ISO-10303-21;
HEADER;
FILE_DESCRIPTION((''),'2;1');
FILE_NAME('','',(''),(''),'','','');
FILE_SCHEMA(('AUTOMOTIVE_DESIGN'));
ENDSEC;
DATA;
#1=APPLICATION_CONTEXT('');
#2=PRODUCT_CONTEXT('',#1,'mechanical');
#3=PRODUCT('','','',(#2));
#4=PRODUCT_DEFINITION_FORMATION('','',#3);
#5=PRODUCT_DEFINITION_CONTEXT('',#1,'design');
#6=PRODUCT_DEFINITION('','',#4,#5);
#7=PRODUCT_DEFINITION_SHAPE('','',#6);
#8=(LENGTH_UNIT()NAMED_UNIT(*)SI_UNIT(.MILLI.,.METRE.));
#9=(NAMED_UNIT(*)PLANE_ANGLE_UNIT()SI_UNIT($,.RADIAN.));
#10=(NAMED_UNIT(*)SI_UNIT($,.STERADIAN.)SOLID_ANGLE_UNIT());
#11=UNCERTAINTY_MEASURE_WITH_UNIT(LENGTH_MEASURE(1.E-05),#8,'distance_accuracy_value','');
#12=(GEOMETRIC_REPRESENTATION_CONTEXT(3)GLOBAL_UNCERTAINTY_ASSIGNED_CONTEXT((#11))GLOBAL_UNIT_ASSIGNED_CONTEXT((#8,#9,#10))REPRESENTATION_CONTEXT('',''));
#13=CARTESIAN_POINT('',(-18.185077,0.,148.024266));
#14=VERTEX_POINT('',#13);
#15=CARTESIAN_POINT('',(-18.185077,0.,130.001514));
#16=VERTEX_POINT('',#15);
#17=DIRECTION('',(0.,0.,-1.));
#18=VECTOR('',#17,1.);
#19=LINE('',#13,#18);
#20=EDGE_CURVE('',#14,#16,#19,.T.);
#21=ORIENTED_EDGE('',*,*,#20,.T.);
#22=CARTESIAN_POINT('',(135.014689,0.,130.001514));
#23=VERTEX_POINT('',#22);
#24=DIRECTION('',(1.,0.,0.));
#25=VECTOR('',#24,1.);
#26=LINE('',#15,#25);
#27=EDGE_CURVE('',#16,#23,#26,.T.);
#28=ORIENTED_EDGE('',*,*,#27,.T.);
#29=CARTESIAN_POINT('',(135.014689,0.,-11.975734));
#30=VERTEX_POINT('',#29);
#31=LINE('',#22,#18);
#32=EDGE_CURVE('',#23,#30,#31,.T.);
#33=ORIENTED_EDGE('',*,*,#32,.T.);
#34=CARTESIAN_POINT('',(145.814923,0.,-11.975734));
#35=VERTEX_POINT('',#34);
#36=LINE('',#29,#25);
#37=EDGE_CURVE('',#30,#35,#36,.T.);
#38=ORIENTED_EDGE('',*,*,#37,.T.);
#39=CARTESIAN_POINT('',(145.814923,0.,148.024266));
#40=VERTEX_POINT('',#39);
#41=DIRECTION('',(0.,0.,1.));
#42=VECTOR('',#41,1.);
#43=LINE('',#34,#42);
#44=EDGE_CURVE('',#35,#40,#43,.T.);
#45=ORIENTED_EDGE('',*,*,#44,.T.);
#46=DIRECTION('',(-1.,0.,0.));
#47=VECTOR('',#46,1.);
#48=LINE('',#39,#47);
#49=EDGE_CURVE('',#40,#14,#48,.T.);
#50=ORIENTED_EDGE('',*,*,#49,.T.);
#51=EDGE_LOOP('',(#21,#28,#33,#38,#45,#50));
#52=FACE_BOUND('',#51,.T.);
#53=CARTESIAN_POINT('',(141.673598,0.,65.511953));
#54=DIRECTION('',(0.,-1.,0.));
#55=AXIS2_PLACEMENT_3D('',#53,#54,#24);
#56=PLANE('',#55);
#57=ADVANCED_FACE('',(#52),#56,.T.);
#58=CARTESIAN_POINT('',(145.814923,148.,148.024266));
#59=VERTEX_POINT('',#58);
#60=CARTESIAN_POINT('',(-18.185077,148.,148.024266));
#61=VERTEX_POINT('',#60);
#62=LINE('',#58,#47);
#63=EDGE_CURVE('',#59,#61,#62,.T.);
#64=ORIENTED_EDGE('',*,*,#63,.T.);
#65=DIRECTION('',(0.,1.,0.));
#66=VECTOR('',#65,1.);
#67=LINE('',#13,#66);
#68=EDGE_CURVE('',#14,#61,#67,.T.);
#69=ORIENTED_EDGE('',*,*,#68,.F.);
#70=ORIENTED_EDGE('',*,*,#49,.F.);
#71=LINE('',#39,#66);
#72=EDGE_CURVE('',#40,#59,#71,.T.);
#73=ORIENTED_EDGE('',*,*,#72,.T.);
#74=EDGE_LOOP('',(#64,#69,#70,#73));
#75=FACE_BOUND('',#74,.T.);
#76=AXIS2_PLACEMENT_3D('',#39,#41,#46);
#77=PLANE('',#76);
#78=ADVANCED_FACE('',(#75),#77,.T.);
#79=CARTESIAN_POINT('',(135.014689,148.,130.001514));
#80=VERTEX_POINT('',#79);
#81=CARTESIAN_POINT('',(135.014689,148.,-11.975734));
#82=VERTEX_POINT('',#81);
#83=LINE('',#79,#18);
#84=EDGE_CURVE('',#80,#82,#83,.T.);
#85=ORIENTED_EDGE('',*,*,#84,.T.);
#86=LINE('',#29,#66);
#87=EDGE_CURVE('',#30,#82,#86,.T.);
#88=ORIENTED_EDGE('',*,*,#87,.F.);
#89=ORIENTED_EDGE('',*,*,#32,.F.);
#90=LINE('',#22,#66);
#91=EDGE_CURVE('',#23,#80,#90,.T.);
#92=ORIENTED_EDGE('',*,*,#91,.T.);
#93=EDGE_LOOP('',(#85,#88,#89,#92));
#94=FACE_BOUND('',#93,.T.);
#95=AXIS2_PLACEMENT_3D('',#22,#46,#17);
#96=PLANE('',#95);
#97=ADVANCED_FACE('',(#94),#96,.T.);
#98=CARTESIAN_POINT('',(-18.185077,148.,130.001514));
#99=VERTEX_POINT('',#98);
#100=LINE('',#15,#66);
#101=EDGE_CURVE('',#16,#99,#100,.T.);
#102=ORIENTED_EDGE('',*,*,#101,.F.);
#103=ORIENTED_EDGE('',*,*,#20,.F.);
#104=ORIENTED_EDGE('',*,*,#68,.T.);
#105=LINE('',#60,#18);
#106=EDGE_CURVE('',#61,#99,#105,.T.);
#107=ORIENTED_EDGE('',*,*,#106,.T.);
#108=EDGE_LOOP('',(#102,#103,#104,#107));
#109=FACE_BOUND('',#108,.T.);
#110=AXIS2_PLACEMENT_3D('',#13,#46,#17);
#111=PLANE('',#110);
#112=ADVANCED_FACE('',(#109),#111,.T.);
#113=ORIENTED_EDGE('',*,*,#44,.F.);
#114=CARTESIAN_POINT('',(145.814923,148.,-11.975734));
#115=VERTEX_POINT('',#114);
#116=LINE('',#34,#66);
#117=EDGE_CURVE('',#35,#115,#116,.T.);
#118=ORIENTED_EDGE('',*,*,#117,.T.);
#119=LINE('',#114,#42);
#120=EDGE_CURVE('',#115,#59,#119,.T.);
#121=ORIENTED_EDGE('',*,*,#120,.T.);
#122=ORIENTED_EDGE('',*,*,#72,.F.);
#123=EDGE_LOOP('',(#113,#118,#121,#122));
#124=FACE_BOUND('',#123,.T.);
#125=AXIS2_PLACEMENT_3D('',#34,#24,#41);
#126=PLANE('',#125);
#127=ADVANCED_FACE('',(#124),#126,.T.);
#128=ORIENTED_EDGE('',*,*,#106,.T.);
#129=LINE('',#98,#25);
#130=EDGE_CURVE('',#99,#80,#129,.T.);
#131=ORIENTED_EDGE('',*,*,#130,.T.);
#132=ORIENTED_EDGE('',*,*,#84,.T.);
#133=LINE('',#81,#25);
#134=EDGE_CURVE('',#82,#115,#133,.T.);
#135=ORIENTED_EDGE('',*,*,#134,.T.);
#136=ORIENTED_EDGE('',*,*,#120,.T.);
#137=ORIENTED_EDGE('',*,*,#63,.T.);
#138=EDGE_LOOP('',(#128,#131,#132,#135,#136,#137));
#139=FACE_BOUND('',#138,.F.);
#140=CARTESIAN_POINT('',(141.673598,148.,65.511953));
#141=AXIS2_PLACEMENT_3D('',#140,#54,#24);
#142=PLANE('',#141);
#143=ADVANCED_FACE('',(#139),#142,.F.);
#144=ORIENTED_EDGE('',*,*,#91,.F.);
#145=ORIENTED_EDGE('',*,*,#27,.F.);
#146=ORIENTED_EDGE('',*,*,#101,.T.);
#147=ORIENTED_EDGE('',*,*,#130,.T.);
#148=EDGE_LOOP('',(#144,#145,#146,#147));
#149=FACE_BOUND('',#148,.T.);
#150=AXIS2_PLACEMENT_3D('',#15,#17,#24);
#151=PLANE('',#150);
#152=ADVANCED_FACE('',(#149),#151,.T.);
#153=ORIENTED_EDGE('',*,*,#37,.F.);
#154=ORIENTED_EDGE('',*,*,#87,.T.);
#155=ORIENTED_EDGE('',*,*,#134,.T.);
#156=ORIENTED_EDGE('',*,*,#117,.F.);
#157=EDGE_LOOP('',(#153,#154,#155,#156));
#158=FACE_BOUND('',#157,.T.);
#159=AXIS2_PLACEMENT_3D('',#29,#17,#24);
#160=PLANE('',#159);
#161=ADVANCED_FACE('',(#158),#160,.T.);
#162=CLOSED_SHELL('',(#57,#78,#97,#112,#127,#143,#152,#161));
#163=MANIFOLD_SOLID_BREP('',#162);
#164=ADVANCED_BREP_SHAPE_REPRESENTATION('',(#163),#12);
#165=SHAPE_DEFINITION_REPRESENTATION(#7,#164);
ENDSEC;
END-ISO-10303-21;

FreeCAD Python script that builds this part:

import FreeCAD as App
import Part
import Sketcher

V = App.Vector


def add_polygon(sketch, points):
    """Adds a closed chain of lines whose ends are joined by coincident constraints."""
    first, n = sketch.GeometryCount, len(points)
    for a, b in zip(points, points[1:] + points[:1]):
        sketch.addGeometry(Part.LineSegment(App.Vector(*a, 0), App.Vector(*b, 0)), False)
    for i in range(n):
        sketch.addConstraint(Sketcher.Constraint("Coincident", first + i, 2, first + (i + 1) % n, 1))

doc = App.newDocument("Part")
body = doc.addObject("PartDesign::Body", "Body")

sketch1 = body.newObject("Sketcher::SketchObject", "Sketch")
sketch1.AttachmentSupport = (doc.getObject("XZ_Plane"), [""])
sketch1.MapMode = "FlatFace"
add_polygon(sketch1, [(146, -12), (146, 148), (-18, 148), (-18, 130), (135, 130), (135, -12)])
sketch1.addConstraint(Sketcher.Constraint("Vertical", 0))
sketch1.addConstraint(Sketcher.Constraint("Horizontal", 1))
sketch1.addConstraint(Sketcher.Constraint("Vertical", 2))
sketch1.addConstraint(Sketcher.Constraint("Horizontal", 3))
sketch1.addConstraint(Sketcher.Constraint("Vertical", 4))
sketch1.addConstraint(Sketcher.Constraint("Horizontal", 5))
sketch1.addConstraint(Sketcher.Constraint("DistanceX", 1, 2, 1, 1, 164.0))
sketch1.addConstraint(Sketcher.Constraint("DistanceY", 0, 1, 0, 2, 160.0))
sketch1.addConstraint(Sketcher.Constraint("DistanceX", 3, 1, 3, 2, 153.199766))
sketch1.addConstraint(Sketcher.Constraint("DistanceY", 2, 2, 2, 1, 18.022752))
sketch1.addConstraint(Sketcher.Constraint("DistanceX", -1, 1, 3, 2, 135.014689))
sketch1.addConstraint(Sketcher.Constraint("DistanceY", -1, 1, 0, 2, 148.024266))
pad1 = body.newObject("PartDesign::Pad", "Pad")
pad1.Profile = sketch1
pad1.Length = 148
pad1.Reversed = True

doc.recompute()
